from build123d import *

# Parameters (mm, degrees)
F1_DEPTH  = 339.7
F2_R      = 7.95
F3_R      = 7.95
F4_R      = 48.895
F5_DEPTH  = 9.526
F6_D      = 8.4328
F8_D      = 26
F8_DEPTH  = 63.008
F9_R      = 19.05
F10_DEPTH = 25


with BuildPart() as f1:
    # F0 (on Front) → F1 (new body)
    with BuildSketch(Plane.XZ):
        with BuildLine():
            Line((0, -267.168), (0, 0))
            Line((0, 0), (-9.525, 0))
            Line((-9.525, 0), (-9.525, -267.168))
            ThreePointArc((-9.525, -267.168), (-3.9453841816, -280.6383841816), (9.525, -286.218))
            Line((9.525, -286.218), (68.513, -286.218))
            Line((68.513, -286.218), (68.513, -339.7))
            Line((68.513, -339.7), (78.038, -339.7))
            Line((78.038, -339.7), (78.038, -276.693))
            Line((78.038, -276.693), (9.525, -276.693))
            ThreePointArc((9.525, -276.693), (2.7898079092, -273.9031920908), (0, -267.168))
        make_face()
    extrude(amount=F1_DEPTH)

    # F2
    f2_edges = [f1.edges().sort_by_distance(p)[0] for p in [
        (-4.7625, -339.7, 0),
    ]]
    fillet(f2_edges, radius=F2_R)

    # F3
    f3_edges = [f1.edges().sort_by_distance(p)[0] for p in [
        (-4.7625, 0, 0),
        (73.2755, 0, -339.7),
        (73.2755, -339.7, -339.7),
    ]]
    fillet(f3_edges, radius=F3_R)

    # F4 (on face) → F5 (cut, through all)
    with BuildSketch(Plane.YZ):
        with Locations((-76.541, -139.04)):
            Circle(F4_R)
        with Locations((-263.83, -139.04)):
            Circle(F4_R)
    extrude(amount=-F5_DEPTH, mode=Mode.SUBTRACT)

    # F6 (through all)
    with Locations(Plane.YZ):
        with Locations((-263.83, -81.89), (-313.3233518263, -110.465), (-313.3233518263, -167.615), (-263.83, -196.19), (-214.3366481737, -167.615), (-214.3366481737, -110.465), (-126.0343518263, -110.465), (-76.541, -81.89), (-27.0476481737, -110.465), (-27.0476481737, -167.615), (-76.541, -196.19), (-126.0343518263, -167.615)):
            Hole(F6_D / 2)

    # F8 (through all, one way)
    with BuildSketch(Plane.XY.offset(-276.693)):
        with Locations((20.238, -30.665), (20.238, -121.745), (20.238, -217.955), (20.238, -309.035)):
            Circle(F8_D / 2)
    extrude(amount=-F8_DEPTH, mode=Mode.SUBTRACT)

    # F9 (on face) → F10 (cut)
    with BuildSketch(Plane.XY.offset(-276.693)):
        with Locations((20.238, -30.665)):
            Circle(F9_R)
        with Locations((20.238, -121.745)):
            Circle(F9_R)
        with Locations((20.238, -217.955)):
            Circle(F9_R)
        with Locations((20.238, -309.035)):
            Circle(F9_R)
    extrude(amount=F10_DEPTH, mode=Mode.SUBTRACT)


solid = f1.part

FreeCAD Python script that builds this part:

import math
import FreeCAD as App
import Part
import Sketcher
from FreeCAD import Vector
Q = App.Units.Quantity


def edges_at(feature, points):
    """Names of the edges that pass closest to the given points."""
    edges = feature.Shape.Edges
    near = lambda p: min(range(len(edges)), key=lambda i: edges[i].distToShape(Part.Vertex(*p))[0])
    return sorted({f"Edge{near(p) + 1}" for p in points})

doc = App.newDocument("Part")
params = doc.addObject("Spreadsheet::Sheet", "Params")
for row, (alias, value) in enumerate([
    ("sketch1_radius", "0.75 in"),
    ("sketch1_radius2", "0.375 in"),
    ("pad1_length", "339.7 mm"),
    ("fillet_radius", "7.95 mm"),
    ("fillet2_radius", "7.95 mm"),
    ("sketch2_diameter", "3.85 in"),
    ("sketch3_diameter", "0.332 in"),
    ("hole_diameter", "0.332 in"),
    ("sketch5_diameter", "1.5 in"),
    ("pocket3_length", "25 mm"),
], start=1):
    params.set(f"A{row}", alias)
    params.set(f"B{row}", "=" + value)
    params.setAlias(f"B{row}", alias)

body = doc.addObject("PartDesign::Body", "Body")

# Sketch on XZ plane
sketch1 = body.newObject("Sketcher::SketchObject", "Sketch")
sketch1.AttachmentSupport = (doc.getObject("XZ_Plane"), [""])
sketch1.MapMode = "FlatFace"
sketch1.addGeometry(Part.LineSegment(Vector(0, -267.168, 0), Vector(0, 0, 0)), False)
sketch1.addGeometry(Part.LineSegment(Vector(0, 0, 0), Vector(-9.525, 0, 0)), False)
sketch1.addGeometry(Part.LineSegment(Vector(-9.525, 0, 0), Vector(-9.525, -267.168, 0)), False)
sketch1.addGeometry(Part.ArcOfCircle(Part.Circle(Vector(9.525, -267.168, 0), Vector(0, 0, 1), 19.05), math.radians(180), math.radians(270)), False)
sketch1.addGeometry(Part.LineSegment(Vector(9.525, -286.218, 0), Vector(68.513, -286.218, 0)), False)
sketch1.addGeometry(Part.LineSegment(Vector(68.513, -286.218, 0), Vector(68.513, -339.7, 0)), False)
sketch1.addGeometry(Part.LineSegment(Vector(68.513, -339.7, 0), Vector(78.038, -339.7, 0)), False)
sketch1.addGeometry(Part.LineSegment(Vector(78.038, -339.7, 0), Vector(78.038, -276.693, 0)), False)
sketch1.addGeometry(Part.LineSegment(Vector(78.038, -276.693, 0), Vector(9.525, -276.693, 0)), False)
sketch1.addGeometry(Part.ArcOfCircle(Part.Circle(Vector(9.525, -267.168, 0), Vector(0, 0, 1), 9.525), math.radians(180), math.radians(270)), False)
sketch1.addConstraint(Sketcher.Constraint("Coincident", 0, 2, 1, 1))
sketch1.addConstraint(Sketcher.Constraint("Coincident", 1, 2, 2, 1))
sketch1.addConstraint(Sketcher.Constraint("Tangent", 2, 2, 3, 1))
sketch1.addConstraint(Sketcher.Constraint("Tangent", 3, 2, 4, 1))
sketch1.addConstraint(Sketcher.Constraint("Coincident", 4, 2, 5, 1))
sketch1.addConstraint(Sketcher.Constraint("Coincident", 5, 2, 6, 1))
sketch1.addConstraint(Sketcher.Constraint("Coincident", 6, 2, 7, 1))
sketch1.addConstraint(Sketcher.Constraint("Coincident", 7, 2, 8, 1))
sketch1.addConstraint(Sketcher.Constraint("Tangent", 8, 2, 9, 2))
sketch1.addConstraint(Sketcher.Constraint("Tangent", 9, 1, 0, 1))
sketch1.addConstraint(Sketcher.Constraint("Vertical", 0))
sketch1.addConstraint(Sketcher.Constraint("Horizontal", 1))
sketch1.addConstraint(Sketcher.Constraint("Vertical", 2))
sketch1.addConstraint(Sketcher.Constraint("Horizontal", 4))
sketch1.addConstraint(Sketcher.Constraint("Vertical", 5))
sketch1.addConstraint(Sketcher.Constraint("Horizontal", 6))
sketch1.addConstraint(Sketcher.Constraint("Vertical", 7))
sketch1.addConstraint(Sketcher.Constraint("Horizontal", 8))
sketch1.addConstraint(Sketcher.Constraint("Coincident", 0, 2, -1, 1))
sketch1.addConstraint(Sketcher.Constraint("Coincident", 9, 3, 3, 3))
sketch1.addConstraint(Sketcher.Constraint("Equal", 1, 6))
sketch1.addConstraint(Sketcher.Constraint("Radius", 3, Q("0.75 in")))
sketch1.addConstraint(Sketcher.Constraint("Radius", 9, Q("0.375 in")))
sketch1.addConstraint(Sketcher.Constraint("DistanceX", 4, 1, 4, 2, Q("58.988 mm")))
sketch1.addConstraint(Sketcher.Constraint("DistanceY", 0, 1, 0, 2, Q("267.168 mm")))
sketch1.addConstraint(Sketcher.Constraint("DistanceY", 5, 2, 5, 1, Q("53.482 mm")))
sketch1.setExpression("Constraints[21]", "Params.sketch1_radius")
sketch1.setExpression("Constraints[22]", "Params.sketch1_radius2")
pad1 = body.newObject("PartDesign::Pad", "Pad")
pad1.Profile = sketch1
pad1.setExpression("Length", "Params.pad1_length")
doc.recompute()

fillet = body.newObject("PartDesign::Fillet", "Fillet")
fillet.Base = (pad1, edges_at(pad1, [(-4.763, -339.7, 0)]))
fillet.setExpression("Radius", "Params.fillet_radius")
doc.recompute()

fillet2 = body.newObject("PartDesign::Fillet", "Fillet001")
fillet2.Base = (fillet, edges_at(fillet, [(-4.763, 0, 0), (73.275, 0, -339.7), (73.275, -339.7, -339.7)]))
fillet2.setExpression("Radius", "Params.fillet2_radius")

# Sketch on YZ plane
sketch2 = body.newObject("Sketcher::SketchObject", "Sketch001")
sketch2.AttachmentSupport = (doc.getObject("YZ_Plane"), [""])
sketch2.MapMode = "FlatFace"
sketch2.addGeometry(Part.Circle(Vector(-76.541, -139.04, 0), Vector(0, 0, 1), 48.895), False)
sketch2.addGeometry(Part.Circle(Vector(-263.83, -139.04, 0), Vector(0, 0, 1), 48.895), False)
sketch2.addConstraint(Sketcher.Constraint("Equal", 0, 1))
sketch2.addConstraint(Sketcher.Constraint("Horizontal", 0, 3, 1, 3))
sketch2.addConstraint(Sketcher.Constraint("Diameter", 0, Q("3.85 in")))
sketch2.addConstraint(Sketcher.Constraint("DistanceX", 0, 3, -1, 1, Q("76.541 mm")))
sketch2.addConstraint(Sketcher.Constraint("DistanceY", 0, 3, -1, 1, Q("139.04 mm")))
sketch2.addConstraint(Sketcher.Constraint("DistanceX", 1, 3, -1, 1, Q("263.83 mm")))
sketch2.setExpression("Constraints[2]", "Params.sketch2_diameter")
pocket1 = body.newObject("PartDesign::Pocket", "Pocket")
pocket1.Profile = sketch2
pocket1.Type = "ThroughAll"

# Sketch on YZ plane
sketch3 = body.newObject("Sketcher::SketchObject", "Sketch002")
sketch3.AttachmentSupport = (doc.getObject("YZ_Plane"), [""])
sketch3.MapMode = "FlatFace"
sketch3.addGeometry(Part.Circle(Vector(-263.83, -81.89, 0), Vector(0, 0, 1), 4.2164), False)
sketch3.addGeometry(Part.Circle(Vector(-313.323352, -110.465, 0), Vector(0, 0, 1), 4.2164), False)
sketch3.addGeometry(Part.Circle(Vector(-313.323352, -167.615, 0), Vector(0, 0, 1), 4.2164), False)
sketch3.addGeometry(Part.Circle(Vector(-263.83, -196.19, 0), Vector(0, 0, 1), 4.2164), False)
sketch3.addGeometry(Part.Circle(Vector(-214.336648, -167.615, 0), Vector(0, 0, 1), 4.2164), False)
sketch3.addGeometry(Part.Circle(Vector(-214.336648, -110.465, 0), Vector(0, 0, 1), 4.2164), False)
sketch3.addGeometry(Part.Circle(Vector(-126.034352, -110.465, 0), Vector(0, 0, 1), 4.2164), False)
sketch3.addGeometry(Part.Circle(Vector(-76.541, -81.89, 0), Vector(0, 0, 1), 4.2164), False)
sketch3.addGeometry(Part.Circle(Vector(-27.047648, -110.465, 0), Vector(0, 0, 1), 4.2164), False)
sketch3.addGeometry(Part.Circle(Vector(-27.047648, -167.615, 0), Vector(0, 0, 1), 4.2164), False)
sketch3.addGeometry(Part.Circle(Vector(-76.541, -196.19, 0), Vector(0, 0, 1), 4.2164), False)
sketch3.addGeometry(Part.Circle(Vector(-126.034352, -167.615, 0), Vector(0, 0, 1), 4.2164), False)
sketch3.addConstraint(Sketcher.Constraint("Equal", 0, 1))
sketch3.addConstraint(Sketcher.Constraint("Equal", 1, 2))
sketch3.addConstraint(Sketcher.Constraint("Equal", 2, 3))
sketch3.addConstraint(Sketcher.Constraint("Equal", 3, 4))
sketch3.addConstraint(Sketcher.Constraint("Equal", 4, 5))
sketch3.addConstraint(Sketcher.Constraint("Equal", 5, 6))
sketch3.addConstraint(Sketcher.Constraint("Equal", 6, 7))
sketch3.addConstraint(Sketcher.Constraint("Equal", 7, 8))
sketch3.addConstraint(Sketcher.Constraint("Equal", 8, 9))
sketch3.addConstraint(Sketcher.Constraint("Equal", 9, 10))
sketch3.addConstraint(Sketcher.Constraint("Equal", 10, 11))
sketch3.addConstraint(Sketcher.Constraint("Horizontal", 2, 3, 4, 3))
sketch3.addConstraint(Sketcher.Constraint("Horizontal", 1, 3, 5, 3))
sketch3.addConstraint(Sketcher.Constraint("Horizontal", 5, 3, 6, 3))
sketch3.addConstraint(Sketcher.Constraint("Horizontal", 0, 3, 7, 3))
sketch3.addConstraint(Sketcher.Constraint("Horizontal", 6, 3, 8, 3))
sketch3.addConstraint(Sketcher.Constraint("Horizontal", 4, 3, 9, 3))
sketch3.addConstraint(Sketcher.Constraint("Horizontal", 3, 3, 10, 3))
sketch3.addConstraint(Sketcher.Constraint("Horizontal", 9, 3, 11, 3))
sketch3.addConstraint(Sketcher.Constraint("Vertical", 1, 3, 2, 3))
sketch3.addConstraint(Sketcher.Constraint("Vertical", 0, 3, 3, 3))
sketch3.addConstraint(Sketcher.Constraint("Vertical", 4, 3, 5, 3))
sketch3.addConstraint(Sketcher.Constraint("Vertical", 8, 3, 9, 3))
sketch3.addConstraint(Sketcher.Constraint("Vertical", 7, 3, 10, 3))
sketch3.addConstraint(Sketcher.Constraint("Vertical", 6, 3, 11, 3))
sketch3.addConstraint(Sketcher.Constraint("Diameter", 0, Q("0.332 in")))
sketch3.addConstraint(Sketcher.Constraint("DistanceY", 3, 3, 0, 3, Q("4.5 in")))
sketch3.addConstraint(Sketcher.Constraint("DistanceY", 2, 3, 1, 3, Q("2.25 in")))
sketch3.addConstraint(Sketcher.Constraint("DistanceY", 1, 3, 0, 3, Q("1.125 in")))
sketch3.addConstraint(Sketcher.Constraint("DistanceX", 0, 3, -1, 1, Q("263.83 mm")))
sketch3.addConstraint(Sketcher.Constraint("DistanceY", 0, 3, -1, 1, Q("81.89 mm")))
sketch3.addConstraint(Sketcher.Constraint("DistanceX", 7, 3, -1, 1, Q("76.541 mm")))
sketch3.addConstraint(Sketcher.Constraint("DistanceX", 1, 3, 6, 3, Q("187.289 mm")))
sketch3.addConstraint(Sketcher.Constraint("DistanceX", 5, 3, 8, 3, Q("187.289 mm")))
sketch3.addConstraint(Sketcher.Constraint("DistanceX", 1, 3, -1, 1, Q("313.323352 mm")))
sketch3.addConstraint(Sketcher.Constraint("DistanceX", 4, 3, -1, 1, Q("214.336648 mm")))
sketch3.setExpression("Constraints[25]", "Params.sketch3_diameter")
doc.recompute()
hole = body.newObject("PartDesign::Hole", "Hole")
hole.Profile = sketch3
hole.ThreadType = "None"
hole.setExpression("Diameter", "Params.hole_diameter")
hole.DepthType = "ThroughAll"

# Sketch on XY plane
sketch4 = body.newObject("Sketcher::SketchObject", "Sketch003")
sketch4.AttachmentSupport = (doc.getObject("XY_Plane"), [""])
sketch4.MapMode = "FlatFace"
sketch4.AttachmentOffset = App.Placement(Vector(0, 0, -276.693), App.Rotation())
sketch4.addGeometry(Part.Circle(Vector(20.238, -309.035, 0), Vector(0, 0, 1), 13), False)
sketch4.addGeometry(Part.Circle(Vector(20.238, -30.665, 0), Vector(0, 0, 1), 13), False)
sketch4.addGeometry(Part.Circle(Vector(20.238, -121.745, 0), Vector(0, 0, 1), 13), False)
sketch4.addGeometry(Part.Circle(Vector(20.238, -217.955, 0), Vector(0, 0, 1), 13), False)
sketch4.addConstraint(Sketcher.Constraint("Equal", 0, 1))
sketch4.addConstraint(Sketcher.Constraint("Equal", 1, 2))
sketch4.addConstraint(Sketcher.Constraint("Equal", 2, 3))
sketch4.addConstraint(Sketcher.Constraint("Vertical", 0, 3, 1, 3))
sketch4.addConstraint(Sketcher.Constraint("Vertical", 1, 3, 2, 3))
sketch4.addConstraint(Sketcher.Constraint("Vertical", 2, 3, 3, 3))
sketch4.addConstraint(Sketcher.Constraint("Diameter", 0, Q("26 mm")))
sketch4.addConstraint(Sketcher.Constraint("DistanceX", -1, 1, 0, 3, Q("20.238 mm")))
sketch4.addConstraint(Sketcher.Constraint("DistanceY", 0, 3, -1, 1, Q("309.035 mm")))
sketch4.addConstraint(Sketcher.Constraint("DistanceY", 1, 3, -1, 1, Q("30.665 mm")))
sketch4.addConstraint(Sketcher.Constraint("DistanceY", 2, 3, -1, 1, Q("121.745 mm")))
sketch4.addConstraint(Sketcher.Constraint("DistanceY", 3, 3, -1, 1, Q("217.955 mm")))
pocket2 = body.newObject("PartDesign::Pocket", "Pocket001")
pocket2.Profile = sketch4
pocket2.Type = "ThroughAll"

# Sketch on XY plane
sketch5 = body.newObject("Sketcher::SketchObject", "Sketch004")
sketch5.AttachmentSupport = (doc.getObject("XY_Plane"), [""])
sketch5.MapMode = "FlatFace"
sketch5.AttachmentOffset = App.Placement(Vector(0, 0, -276.693), App.Rotation())
sketch5.addGeometry(Part.Circle(Vector(20.238, -30.665, 0), Vector(0, 0, 1), 19.05), False)
sketch5.addGeometry(Part.Circle(Vector(20.238, -121.745, 0), Vector(0, 0, 1), 19.05), False)
sketch5.addGeometry(Part.Circle(Vector(20.238, -217.955, 0), Vector(0, 0, 1), 19.05), False)
sketch5.addGeometry(Part.Circle(Vector(20.238, -309.035, 0), Vector(0, 0, 1), 19.05), False)
sketch5.addConstraint(Sketcher.Constraint("Equal", 0, 1))
sketch5.addConstraint(Sketcher.Constraint("Equal", 1, 2))
sketch5.addConstraint(Sketcher.Constraint("Equal", 2, 3))
sketch5.addConstraint(Sketcher.Constraint("Vertical", 0, 3, 1, 3))
sketch5.addConstraint(Sketcher.Constraint("Vertical", 1, 3, 2, 3))
sketch5.addConstraint(Sketcher.Constraint("Vertical", 2, 3, 3, 3))
sketch5.addConstraint(Sketcher.Constraint("Diameter", 0, Q("1.5 in")))
sketch5.addConstraint(Sketcher.Constraint("DistanceX", -1, 1, 0, 3, Q("20.238 mm")))
sketch5.addConstraint(Sketcher.Constraint("DistanceY", 0, 3, -1, 1, Q("30.665 mm")))
sketch5.addConstraint(Sketcher.Constraint("DistanceY", 1, 3, -1, 1, Q("121.745 mm")))
sketch5.addConstraint(Sketcher.Constraint("DistanceY", 2, 3, -1, 1, Q("217.955 mm")))
sketch5.addConstraint(Sketcher.Constraint("DistanceY", 3, 3, -1, 1, Q("309.035 mm")))
sketch5.setExpression("Constraints[6]", "Params.sketch5_diameter")
pocket3 = body.newObject("PartDesign::Pocket", "Pocket002")
pocket3.Profile = sketch5
pocket3.setExpression("Length", "Params.pocket3_length")
pocket3.Reversed = True

doc.recompute()
